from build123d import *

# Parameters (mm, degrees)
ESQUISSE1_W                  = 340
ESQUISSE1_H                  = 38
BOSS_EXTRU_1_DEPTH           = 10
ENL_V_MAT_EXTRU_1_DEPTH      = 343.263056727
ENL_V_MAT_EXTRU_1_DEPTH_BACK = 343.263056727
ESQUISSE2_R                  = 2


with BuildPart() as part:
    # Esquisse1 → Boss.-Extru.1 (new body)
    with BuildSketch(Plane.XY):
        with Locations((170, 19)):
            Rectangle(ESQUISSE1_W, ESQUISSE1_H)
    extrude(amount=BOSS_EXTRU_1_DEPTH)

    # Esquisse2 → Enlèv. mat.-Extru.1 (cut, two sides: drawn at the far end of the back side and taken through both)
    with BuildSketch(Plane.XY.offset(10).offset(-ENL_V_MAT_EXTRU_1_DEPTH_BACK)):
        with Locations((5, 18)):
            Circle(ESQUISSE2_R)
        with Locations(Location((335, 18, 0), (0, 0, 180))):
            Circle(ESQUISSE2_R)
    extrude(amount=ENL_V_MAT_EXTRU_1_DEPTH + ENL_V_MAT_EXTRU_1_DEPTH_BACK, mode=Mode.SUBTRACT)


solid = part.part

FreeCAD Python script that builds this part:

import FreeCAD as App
import Part
import Sketcher

V = App.Vector


def add_polygon(sketch, points):
    """Adds a closed chain of lines whose ends are joined by coincident constraints."""
    first, n = sketch.GeometryCount, len(points)
    for a, b in zip(points, points[1:] + points[:1]):
        sketch.addGeometry(Part.LineSegment(App.Vector(*a, 0), App.Vector(*b, 0)), False)
    for i in range(n):
        sketch.addConstraint(Sketcher.Constraint("Coincident", first + i, 2, first + (i + 1) % n, 1))

doc = App.newDocument("Part")
body = doc.addObject("PartDesign::Body", "Body")

sketch1 = body.newObject("Sketcher::SketchObject", "Sketch")
sketch1.AttachmentSupport = (doc.getObject("XY_Plane"), [""])
sketch1.MapMode = "FlatFace"
add_polygon(sketch1, [(0, 38), (0, 0), (340, 0), (340, 38)])
sketch1.addConstraint([
    Sketcher.Constraint("Vertical", 0),
    Sketcher.Constraint("Horizontal", 1),
    Sketcher.Constraint("Vertical", 2),
    Sketcher.Constraint("Horizontal", 3),
    Sketcher.Constraint("Coincident", 0, 2, -1, 1),
    Sketcher.Constraint("DistanceX", 1, 1, 1, 2, 340.0),
    Sketcher.Constraint("DistanceY", 0, 2, 0, 1, 38.0),
])
pad1 = body.newObject("PartDesign::Pad", "Pad")
pad1.Profile = sketch1
pad1.Length = 10

sketch2 = body.newObject("Sketcher::SketchObject", "Sketch001")
sketch2.AttachmentSupport = (doc.getObject("XY_Plane"), [""])
sketch2.MapMode = "FlatFace"
sketch2.AttachmentOffset = App.Placement(V(0, 0, 10), App.Rotation())
sketch2.addGeometry([
    Part.Circle(V(5, 18, 0), V(0, 0, 1), 2),
    Part.Circle(V(335, 18, 0), V(0, 0, 1), 2),
], False)
sketch2.addConstraint([
    Sketcher.Constraint("Equal", 0, 1),
    Sketcher.Constraint("Horizontal", 0, 3, 1, 3),
    Sketcher.Constraint("Diameter", 0, 4.0),
    Sketcher.Constraint("DistanceX", -1, 1, 0, 3, 5.0),
    Sketcher.Constraint("DistanceY", -1, 1, 0, 3, 18.0),
    Sketcher.Constraint("DistanceX", -1, 1, 1, 3, 335.0),
])
pocket1 = body.newObject("PartDesign::Pocket", "Pocket")
pocket1.Profile = sketch2
pocket1.Type = "ThroughAll"
pocket1.Midplane = True

doc.recompute()
